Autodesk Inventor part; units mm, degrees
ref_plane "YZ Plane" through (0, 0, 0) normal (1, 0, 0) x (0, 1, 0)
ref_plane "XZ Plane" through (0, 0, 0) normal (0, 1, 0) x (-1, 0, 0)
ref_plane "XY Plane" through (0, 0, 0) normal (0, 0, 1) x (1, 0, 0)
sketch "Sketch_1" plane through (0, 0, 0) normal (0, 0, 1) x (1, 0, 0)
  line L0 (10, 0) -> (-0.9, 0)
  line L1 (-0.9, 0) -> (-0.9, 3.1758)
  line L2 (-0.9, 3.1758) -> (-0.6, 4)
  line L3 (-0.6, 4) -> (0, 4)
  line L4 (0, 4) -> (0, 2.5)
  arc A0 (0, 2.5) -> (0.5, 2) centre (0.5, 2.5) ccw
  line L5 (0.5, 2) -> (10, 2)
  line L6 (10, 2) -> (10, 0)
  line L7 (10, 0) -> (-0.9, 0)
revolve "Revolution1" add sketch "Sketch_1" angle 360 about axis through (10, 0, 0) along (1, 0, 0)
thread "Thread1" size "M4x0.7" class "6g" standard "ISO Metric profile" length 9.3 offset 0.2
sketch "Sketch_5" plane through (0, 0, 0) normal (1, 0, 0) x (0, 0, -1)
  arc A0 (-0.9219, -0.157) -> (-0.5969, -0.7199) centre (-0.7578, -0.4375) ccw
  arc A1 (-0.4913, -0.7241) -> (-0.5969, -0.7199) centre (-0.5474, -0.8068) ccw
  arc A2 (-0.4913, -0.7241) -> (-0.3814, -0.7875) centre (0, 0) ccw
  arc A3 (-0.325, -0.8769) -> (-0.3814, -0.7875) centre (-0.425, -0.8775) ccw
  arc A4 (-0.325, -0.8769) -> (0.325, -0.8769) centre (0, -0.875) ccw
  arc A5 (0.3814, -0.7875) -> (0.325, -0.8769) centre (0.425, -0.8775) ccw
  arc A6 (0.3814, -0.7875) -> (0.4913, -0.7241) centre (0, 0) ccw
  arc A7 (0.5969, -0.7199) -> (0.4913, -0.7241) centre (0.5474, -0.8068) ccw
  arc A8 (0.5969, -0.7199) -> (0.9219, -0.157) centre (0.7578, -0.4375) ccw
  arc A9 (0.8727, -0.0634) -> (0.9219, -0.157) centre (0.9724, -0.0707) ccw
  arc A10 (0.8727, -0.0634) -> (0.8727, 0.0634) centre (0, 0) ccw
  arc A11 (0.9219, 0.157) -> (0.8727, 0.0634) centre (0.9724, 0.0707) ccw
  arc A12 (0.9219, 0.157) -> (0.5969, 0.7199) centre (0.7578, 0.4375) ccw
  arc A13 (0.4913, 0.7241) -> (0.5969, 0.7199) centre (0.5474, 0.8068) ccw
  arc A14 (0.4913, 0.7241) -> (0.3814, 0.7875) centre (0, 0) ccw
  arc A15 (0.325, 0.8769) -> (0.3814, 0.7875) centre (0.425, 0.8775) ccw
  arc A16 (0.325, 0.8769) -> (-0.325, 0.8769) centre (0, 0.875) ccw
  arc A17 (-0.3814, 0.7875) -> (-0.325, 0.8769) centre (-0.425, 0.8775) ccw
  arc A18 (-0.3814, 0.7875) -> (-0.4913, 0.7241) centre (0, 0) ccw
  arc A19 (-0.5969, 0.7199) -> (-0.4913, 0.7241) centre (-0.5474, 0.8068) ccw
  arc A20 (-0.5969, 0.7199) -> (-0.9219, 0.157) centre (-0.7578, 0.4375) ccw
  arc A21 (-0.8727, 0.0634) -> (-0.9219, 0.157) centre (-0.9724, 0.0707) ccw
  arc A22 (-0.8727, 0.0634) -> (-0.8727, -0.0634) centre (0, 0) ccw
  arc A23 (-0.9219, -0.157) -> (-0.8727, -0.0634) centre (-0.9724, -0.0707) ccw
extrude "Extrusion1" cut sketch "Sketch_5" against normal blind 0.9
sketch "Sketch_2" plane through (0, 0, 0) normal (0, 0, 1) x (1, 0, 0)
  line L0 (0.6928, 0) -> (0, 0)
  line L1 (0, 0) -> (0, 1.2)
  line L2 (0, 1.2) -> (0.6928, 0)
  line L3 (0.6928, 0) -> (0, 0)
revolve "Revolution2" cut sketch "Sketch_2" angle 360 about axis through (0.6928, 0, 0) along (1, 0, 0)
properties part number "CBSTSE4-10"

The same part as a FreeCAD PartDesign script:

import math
import FreeCAD as App
import Part
import Sketcher

V = App.Vector
Q = App.Units.Quantity

doc = App.newDocument("Part")
body = doc.addObject("PartDesign::Body", "Body")

sketch1 = body.newObject("Sketcher::SketchObject", "Sketch")
sketch1.AttachmentSupport = (doc.getObject("XY_Plane"), [""])
sketch1.MapMode = "FlatFace"
sketch1.addGeometry([
    Part.LineSegment(V(-0.9, 0, 0), V(10, 0, 0)),
    Part.LineSegment(V(10, 0, 0), V(10, 2, 0)),
    Part.LineSegment(V(10, 2, 0), V(0.5, 2, 0)),
    Part.ArcOfCircle(Part.Circle(V(0.5, 2.5, 0), V(0, 0, 1), 0.5), math.radians(180), math.radians(270)),
    Part.LineSegment(V(0, 2.5, 0), V(0, 4, 0)),
    Part.LineSegment(V(0, 4, 0), V(-0.6, 4, 0)),
    Part.LineSegment(V(-0.6, 4, 0), V(-0.9, 3.1758, 0)),
    Part.LineSegment(V(-0.9, 3.1758, 0), V(-0.9, 0, 0)),
], False)
sketch1.addConstraint([
    Sketcher.Constraint("Coincident", 0, 2, 1, 1),
    Sketcher.Constraint("Coincident", 1, 2, 2, 1),
    Sketcher.Constraint("Tangent", 2, 2, 3, 2),
    Sketcher.Constraint("Tangent", 3, 1, 4, 1),
    Sketcher.Constraint("Coincident", 4, 2, 5, 1),
    Sketcher.Constraint("Coincident", 5, 2, 6, 1),
    Sketcher.Constraint("Coincident", 6, 2, 7, 1),
    Sketcher.Constraint("Coincident", 7, 2, 0, 1),
    Sketcher.Constraint("Horizontal", 0),
    Sketcher.Constraint("Vertical", 1),
    Sketcher.Constraint("Horizontal", 2),
    Sketcher.Constraint("Vertical", 4),
    Sketcher.Constraint("Horizontal", 5),
    Sketcher.Constraint("Vertical", 7),
    Sketcher.Constraint("PointOnObject", 0, 2, -1),
    Sketcher.Constraint("PointOnObject", 3, 1, -2),
    Sketcher.Constraint("Radius", 3, 0.5),
    Sketcher.Constraint("DistanceY", 1, 1, 1, 2, 2.0),
    Sketcher.Constraint("Angle", 6, Q("-110.001 deg")),
    Sketcher.Constraint("DistanceX", 0, 1, 0, 2, 10.9),
    Sketcher.Constraint("DistanceX", 2, 2, 2, 1, 9.5),
    Sketcher.Constraint("DistanceX", 5, 2, 5, 1, 0.6),
    Sketcher.Constraint("DistanceY", 4, 1, 4, 2, 1.5),
])
revolution = body.newObject("PartDesign::Revolution", "Revolution")
revolution.Profile = sketch1
revolution.ReferenceAxis = (sketch1, ["H_Axis"])
revolution.Angle = 360

sketch2 = body.newObject("Sketcher::SketchObject", "Sketch001")
sketch2.AttachmentSupport = (doc.getObject("YZ_Plane"), [""])
sketch2.MapMode = "FlatFace"
sketch2.addGeometry([
    Part.ArcOfCircle(Part.Circle(V(-0.0707, 0.9724, 0), V(0, 0, 1), 0.09999), math.radians(-149.665194), math.radians(-85.812295)),
    Part.ArcOfCircle(Part.Circle(V(-0.4375, 0.7578, 0), V(0, 0, 1), 0.324975), math.radians(30.328775), math.radians(209.672726)),
    Part.ArcOfCircle(Part.Circle(V(-0.8068, 0.5474, 0), V(0, 0, 1), 0.099932), math.radians(-34.151223), math.radians(29.666715)),
    Part.ArcOfCircle(Part.Circle(V(-0.006777, 0.004247, 0), V(0, 0, 1), 0.867049), math.radians(145.824038), math.radians(154.215692)),
    Part.ArcOfCircle(Part.Circle(V(-0.8775, 0.425, 0), V(0, 0, 1), 0.100002), math.radians(-89.656229), math.radians(-25.84761)),
    Part.ArcOfCircle(Part.Circle(V(-0.875, 0, 0), V(0, 0, 1), 0.325006), math.radians(90.334956), math.radians(269.665044)),
    Part.ArcOfCircle(Part.Circle(V(-0.8775, -0.425, 0), V(0, 0, 1), 0.100005), math.radians(25.84761), math.radians(89.656229)),
    Part.ArcOfCircle(Part.Circle(V(0.007198, 0.003814, 0), V(0, 0, 1), 0.883139), math.radians(-154.139113), math.radians(-145.900618)),
    Part.ArcOfCircle(Part.Circle(V(-0.8068, -0.5474, 0), V(0, 0, 1), 0.100009), math.radians(-29.666715), math.radians(34.151223)),
    Part.ArcOfCircle(Part.Circle(V(-0.4375, -0.7578, 0), V(0, 0, 1), 0.325021), math.radians(150.327274), math.radians(329.671225)),
    Part.ArcOfCircle(Part.Circle(V(-0.0707, -0.9724, 0), V(0, 0, 1), 0.099967), math.radians(85.812295), math.radians(149.665194)),
    Part.ArcOfCircle(Part.Circle(V(0, 0, 0), V(0, 0, 1), 0.875), math.radians(-94.15513), math.radians(-85.84487)),
    Part.ArcOfCircle(Part.Circle(V(0.0707, -0.9724, 0), V(0, 0, 1), 0.09999), math.radians(30.334806), math.radians(94.187705)),
    Part.ArcOfCircle(Part.Circle(V(0.4375, -0.7578, 0), V(0, 0, 1), 0.324975), math.radians(-149.671225), math.radians(29.672726)),
    Part.ArcOfCircle(Part.Circle(V(0.8068, -0.5474, 0), V(0, 0, 1), 0.099932), math.radians(145.848777), math.radians(209.666715)),
    Part.ArcOfCircle(Part.Circle(V(0.006777, -0.004247, 0), V(0, 0, 1), 0.867049), math.radians(-34.175962), math.radians(-25.784308)),
    Part.ArcOfCircle(Part.Circle(V(0.8775, -0.425, 0), V(0, 0, 1), 0.100002), math.radians(90.343771), math.radians(154.15239)),
    Part.ArcOfCircle(Part.Circle(V(0.875, 0, 0), V(0, 0, 1), 0.325006), math.radians(-89.665044), math.radians(89.665044)),
    Part.ArcOfCircle(Part.Circle(V(0.8775, 0.425, 0), V(0, 0, 1), 0.100005), math.radians(-154.15239), math.radians(-90.343771)),
    Part.ArcOfCircle(Part.Circle(V(-0.007198, -0.003814, 0), V(0, 0, 1), 0.883139), math.radians(25.860887), math.radians(34.099382)),
    Part.ArcOfCircle(Part.Circle(V(0.8068, 0.5474, 0), V(0, 0, 1), 0.100009), math.radians(150.333285), math.radians(214.151223)),
    Part.ArcOfCircle(Part.Circle(V(0.4375, 0.7578, 0), V(0, 0, 1), 0.325021), math.radians(-29.672726), math.radians(149.671225)),
    Part.ArcOfCircle(Part.Circle(V(0.0707, 0.9724, 0), V(0, 0, 1), 0.099967), math.radians(-94.187705), math.radians(-30.334806)),
    Part.ArcOfCircle(Part.Circle(V(0, 0, 0), V(0, 0, 1), 0.875), math.radians(85.84487), math.radians(94.15513)),
], False)
sketch2.addConstraint([
    Sketcher.Constraint("Tangent", 0, 1, 1, 1),
    Sketcher.Constraint("Tangent", 1, 2, 2, 2),
    Sketcher.Constraint("Tangent", 2, 1, 3, 1),
    Sketcher.Constraint("Coincident", 3, 2, 4, 2),
    Sketcher.Constraint("Tangent", 4, 1, 5, 1),
    Sketcher.Constraint("Tangent", 5, 2, 6, 2),
    Sketcher.Constraint("Tangent", 6, 1, 7, 1),
    Sketcher.Constraint("Coincident", 7, 2, 8, 2),
    Sketcher.Constraint("Tangent", 8, 1, 9, 1),
    Sketcher.Constraint("Tangent", 9, 2, 10, 2),
    Sketcher.Constraint("Coincident", 10, 1, 11, 1),
    Sketcher.Constraint("Coincident", 11, 2, 12, 2),
    Sketcher.Constraint("Tangent", 12, 1, 13, 1),
    Sketcher.Constraint("Tangent", 13, 2, 14, 2),
    Sketcher.Constraint("Tangent", 14, 1, 15, 1),
    Sketcher.Constraint("Coincident", 15, 2, 16, 2),
    Sketcher.Constraint("Tangent", 16, 1, 17, 1),
    Sketcher.Constraint("Tangent", 17, 2, 18, 2),
    Sketcher.Constraint("Tangent", 18, 1, 19, 1),
    Sketcher.Constraint("Coincident", 19, 2, 20, 2),
    Sketcher.Constraint("Tangent", 20, 1, 21, 1),
    Sketcher.Constraint("Tangent", 21, 2, 22, 2),
    Sketcher.Constraint("Coincident", 22, 1, 23, 1),
    Sketcher.Constraint("Coincident", 23, 2, 0, 2),
    Sketcher.Constraint("Coincident", 11, 3, -1, 1),
    Sketcher.Constraint("Coincident", 23, 3, -1, 1),
    Sketcher.Constraint("Equal", 0, 2),
    Sketcher.Constraint("Equal", 2, 4),
    Sketcher.Constraint("Equal", 1, 5),
    Sketcher.Constraint("Equal", 4, 6),
    Sketcher.Constraint("Equal", 6, 8),
    Sketcher.Constraint("Equal", 5, 9),
    Sketcher.Constraint("Equal", 8, 10),
    Sketcher.Constraint("Equal", 10, 12),
    Sketcher.Constraint("Equal", 9, 13),
    Sketcher.Constraint("Equal", 12, 14),
    Sketcher.Constraint("Equal", 3, 15),
    Sketcher.Constraint("Equal", 14, 16),
    Sketcher.Constraint("Equal", 13, 17),
    Sketcher.Constraint("Equal", 16, 18),
    Sketcher.Constraint("Equal", 7, 19),
    Sketcher.Constraint("Equal", 18, 20),
    Sketcher.Constraint("Equal", 17, 21),
    Sketcher.Constraint("Equal", 20, 22),
    Sketcher.Constraint("Equal", 11, 23),
    Sketcher.Constraint("Symmetric", 1, 3, 13, 3, -1, 1),
    Sketcher.Constraint("Symmetric", 3, 3, 15, 3, -1, 1),
    Sketcher.Constraint("Symmetric", 5, 3, 17, 3, -1, 1),
    Sketcher.Constraint("Symmetric", 7, 3, 19, 3, -1, 1),
    Sketcher.Constraint("Symmetric", 9, 3, 21, 3, -1, 1),
    Sketcher.Constraint("Symmetric", 9, 3, 13, 3, -2),
    Sketcher.Constraint("Symmetric", 6, 3, 16, 3, -2),
    Sketcher.Constraint("Symmetric", 7, 2, 14, 1, -2),
    Sketcher.Constraint("Horizontal", 10, 1, 11, 2),
    Sketcher.Constraint("Horizontal", 6, 1, 15, 2),
    Sketcher.Constraint("Horizontal", 3, 2, 18, 1),
    Sketcher.Constraint("Horizontal", 2, 1, 19, 2),
    Sketcher.Constraint("Horizontal", 22, 1, 23, 2),
    Sketcher.Constraint("Vertical", 11, 2, 22, 1),
    Sketcher.Constraint("Radius", 0, 0.1),
    Sketcher.Constraint("Radius", 1, 0.325),
    Sketcher.Constraint("Radius", 3, 0.867),
    Sketcher.Constraint("Radius", 11, 0.875),
    Sketcher.Constraint("Radius", 7, 0.8831),
    Sketcher.Constraint("DistanceX", 2, 3, 3, 3, 0.8),
    Sketcher.Constraint("DistanceX", 8, 1, -1, 1, 0.72),
    Sketcher.Constraint("DistanceX", 4, 3, 1, 3, 0.44),
    Sketcher.Constraint("DistanceY", 3, 2, 2, 1, 0.11),
    Sketcher.Constraint("DistanceX", 4, 1, 2, 3, 0.07),
    Sketcher.Constraint("DistanceX", 10, 1, 12, 3, 0.134),
])
pocket1 = body.newObject("PartDesign::Pocket", "Pocket")
pocket1.Profile = sketch2
pocket1.Length = 0.9

sketch3 = body.newObject("Sketcher::SketchObject", "Sketch002")
sketch3.AttachmentSupport = (doc.getObject("XY_Plane"), [""])
sketch3.MapMode = "FlatFace"
sketch3.addGeometry([
    Part.LineSegment(V(0, 0, 0), V(0.6928, 0, 0)),
    Part.LineSegment(V(0.6928, 0, 0), V(0, 1.2, 0)),
    Part.LineSegment(V(0, 1.2, 0), V(0, 0, 0)),
], False)
sketch3.addConstraint([
    Sketcher.Constraint("Coincident", 0, 2, 1, 1),
    Sketcher.Constraint("Coincident", 1, 2, 2, 1),
    Sketcher.Constraint("Coincident", 2, 2, 0, 1),
    Sketcher.Constraint("Horizontal", 0),
    Sketcher.Constraint("Vertical", 2),
    Sketcher.Constraint("Coincident", 2, 2, -1, 1),
    Sketcher.Constraint("Angle", 1, Q("119.9993 deg")),
    Sketcher.Constraint("DistanceY", 2, 2, 2, 1, 1.2),
])
groove = body.newObject("PartDesign::Groove", "Groove")
groove.Profile = sketch3
groove.ReferenceAxis = (sketch3, ["H_Axis"])
groove.Angle = 360

doc.recompute()
